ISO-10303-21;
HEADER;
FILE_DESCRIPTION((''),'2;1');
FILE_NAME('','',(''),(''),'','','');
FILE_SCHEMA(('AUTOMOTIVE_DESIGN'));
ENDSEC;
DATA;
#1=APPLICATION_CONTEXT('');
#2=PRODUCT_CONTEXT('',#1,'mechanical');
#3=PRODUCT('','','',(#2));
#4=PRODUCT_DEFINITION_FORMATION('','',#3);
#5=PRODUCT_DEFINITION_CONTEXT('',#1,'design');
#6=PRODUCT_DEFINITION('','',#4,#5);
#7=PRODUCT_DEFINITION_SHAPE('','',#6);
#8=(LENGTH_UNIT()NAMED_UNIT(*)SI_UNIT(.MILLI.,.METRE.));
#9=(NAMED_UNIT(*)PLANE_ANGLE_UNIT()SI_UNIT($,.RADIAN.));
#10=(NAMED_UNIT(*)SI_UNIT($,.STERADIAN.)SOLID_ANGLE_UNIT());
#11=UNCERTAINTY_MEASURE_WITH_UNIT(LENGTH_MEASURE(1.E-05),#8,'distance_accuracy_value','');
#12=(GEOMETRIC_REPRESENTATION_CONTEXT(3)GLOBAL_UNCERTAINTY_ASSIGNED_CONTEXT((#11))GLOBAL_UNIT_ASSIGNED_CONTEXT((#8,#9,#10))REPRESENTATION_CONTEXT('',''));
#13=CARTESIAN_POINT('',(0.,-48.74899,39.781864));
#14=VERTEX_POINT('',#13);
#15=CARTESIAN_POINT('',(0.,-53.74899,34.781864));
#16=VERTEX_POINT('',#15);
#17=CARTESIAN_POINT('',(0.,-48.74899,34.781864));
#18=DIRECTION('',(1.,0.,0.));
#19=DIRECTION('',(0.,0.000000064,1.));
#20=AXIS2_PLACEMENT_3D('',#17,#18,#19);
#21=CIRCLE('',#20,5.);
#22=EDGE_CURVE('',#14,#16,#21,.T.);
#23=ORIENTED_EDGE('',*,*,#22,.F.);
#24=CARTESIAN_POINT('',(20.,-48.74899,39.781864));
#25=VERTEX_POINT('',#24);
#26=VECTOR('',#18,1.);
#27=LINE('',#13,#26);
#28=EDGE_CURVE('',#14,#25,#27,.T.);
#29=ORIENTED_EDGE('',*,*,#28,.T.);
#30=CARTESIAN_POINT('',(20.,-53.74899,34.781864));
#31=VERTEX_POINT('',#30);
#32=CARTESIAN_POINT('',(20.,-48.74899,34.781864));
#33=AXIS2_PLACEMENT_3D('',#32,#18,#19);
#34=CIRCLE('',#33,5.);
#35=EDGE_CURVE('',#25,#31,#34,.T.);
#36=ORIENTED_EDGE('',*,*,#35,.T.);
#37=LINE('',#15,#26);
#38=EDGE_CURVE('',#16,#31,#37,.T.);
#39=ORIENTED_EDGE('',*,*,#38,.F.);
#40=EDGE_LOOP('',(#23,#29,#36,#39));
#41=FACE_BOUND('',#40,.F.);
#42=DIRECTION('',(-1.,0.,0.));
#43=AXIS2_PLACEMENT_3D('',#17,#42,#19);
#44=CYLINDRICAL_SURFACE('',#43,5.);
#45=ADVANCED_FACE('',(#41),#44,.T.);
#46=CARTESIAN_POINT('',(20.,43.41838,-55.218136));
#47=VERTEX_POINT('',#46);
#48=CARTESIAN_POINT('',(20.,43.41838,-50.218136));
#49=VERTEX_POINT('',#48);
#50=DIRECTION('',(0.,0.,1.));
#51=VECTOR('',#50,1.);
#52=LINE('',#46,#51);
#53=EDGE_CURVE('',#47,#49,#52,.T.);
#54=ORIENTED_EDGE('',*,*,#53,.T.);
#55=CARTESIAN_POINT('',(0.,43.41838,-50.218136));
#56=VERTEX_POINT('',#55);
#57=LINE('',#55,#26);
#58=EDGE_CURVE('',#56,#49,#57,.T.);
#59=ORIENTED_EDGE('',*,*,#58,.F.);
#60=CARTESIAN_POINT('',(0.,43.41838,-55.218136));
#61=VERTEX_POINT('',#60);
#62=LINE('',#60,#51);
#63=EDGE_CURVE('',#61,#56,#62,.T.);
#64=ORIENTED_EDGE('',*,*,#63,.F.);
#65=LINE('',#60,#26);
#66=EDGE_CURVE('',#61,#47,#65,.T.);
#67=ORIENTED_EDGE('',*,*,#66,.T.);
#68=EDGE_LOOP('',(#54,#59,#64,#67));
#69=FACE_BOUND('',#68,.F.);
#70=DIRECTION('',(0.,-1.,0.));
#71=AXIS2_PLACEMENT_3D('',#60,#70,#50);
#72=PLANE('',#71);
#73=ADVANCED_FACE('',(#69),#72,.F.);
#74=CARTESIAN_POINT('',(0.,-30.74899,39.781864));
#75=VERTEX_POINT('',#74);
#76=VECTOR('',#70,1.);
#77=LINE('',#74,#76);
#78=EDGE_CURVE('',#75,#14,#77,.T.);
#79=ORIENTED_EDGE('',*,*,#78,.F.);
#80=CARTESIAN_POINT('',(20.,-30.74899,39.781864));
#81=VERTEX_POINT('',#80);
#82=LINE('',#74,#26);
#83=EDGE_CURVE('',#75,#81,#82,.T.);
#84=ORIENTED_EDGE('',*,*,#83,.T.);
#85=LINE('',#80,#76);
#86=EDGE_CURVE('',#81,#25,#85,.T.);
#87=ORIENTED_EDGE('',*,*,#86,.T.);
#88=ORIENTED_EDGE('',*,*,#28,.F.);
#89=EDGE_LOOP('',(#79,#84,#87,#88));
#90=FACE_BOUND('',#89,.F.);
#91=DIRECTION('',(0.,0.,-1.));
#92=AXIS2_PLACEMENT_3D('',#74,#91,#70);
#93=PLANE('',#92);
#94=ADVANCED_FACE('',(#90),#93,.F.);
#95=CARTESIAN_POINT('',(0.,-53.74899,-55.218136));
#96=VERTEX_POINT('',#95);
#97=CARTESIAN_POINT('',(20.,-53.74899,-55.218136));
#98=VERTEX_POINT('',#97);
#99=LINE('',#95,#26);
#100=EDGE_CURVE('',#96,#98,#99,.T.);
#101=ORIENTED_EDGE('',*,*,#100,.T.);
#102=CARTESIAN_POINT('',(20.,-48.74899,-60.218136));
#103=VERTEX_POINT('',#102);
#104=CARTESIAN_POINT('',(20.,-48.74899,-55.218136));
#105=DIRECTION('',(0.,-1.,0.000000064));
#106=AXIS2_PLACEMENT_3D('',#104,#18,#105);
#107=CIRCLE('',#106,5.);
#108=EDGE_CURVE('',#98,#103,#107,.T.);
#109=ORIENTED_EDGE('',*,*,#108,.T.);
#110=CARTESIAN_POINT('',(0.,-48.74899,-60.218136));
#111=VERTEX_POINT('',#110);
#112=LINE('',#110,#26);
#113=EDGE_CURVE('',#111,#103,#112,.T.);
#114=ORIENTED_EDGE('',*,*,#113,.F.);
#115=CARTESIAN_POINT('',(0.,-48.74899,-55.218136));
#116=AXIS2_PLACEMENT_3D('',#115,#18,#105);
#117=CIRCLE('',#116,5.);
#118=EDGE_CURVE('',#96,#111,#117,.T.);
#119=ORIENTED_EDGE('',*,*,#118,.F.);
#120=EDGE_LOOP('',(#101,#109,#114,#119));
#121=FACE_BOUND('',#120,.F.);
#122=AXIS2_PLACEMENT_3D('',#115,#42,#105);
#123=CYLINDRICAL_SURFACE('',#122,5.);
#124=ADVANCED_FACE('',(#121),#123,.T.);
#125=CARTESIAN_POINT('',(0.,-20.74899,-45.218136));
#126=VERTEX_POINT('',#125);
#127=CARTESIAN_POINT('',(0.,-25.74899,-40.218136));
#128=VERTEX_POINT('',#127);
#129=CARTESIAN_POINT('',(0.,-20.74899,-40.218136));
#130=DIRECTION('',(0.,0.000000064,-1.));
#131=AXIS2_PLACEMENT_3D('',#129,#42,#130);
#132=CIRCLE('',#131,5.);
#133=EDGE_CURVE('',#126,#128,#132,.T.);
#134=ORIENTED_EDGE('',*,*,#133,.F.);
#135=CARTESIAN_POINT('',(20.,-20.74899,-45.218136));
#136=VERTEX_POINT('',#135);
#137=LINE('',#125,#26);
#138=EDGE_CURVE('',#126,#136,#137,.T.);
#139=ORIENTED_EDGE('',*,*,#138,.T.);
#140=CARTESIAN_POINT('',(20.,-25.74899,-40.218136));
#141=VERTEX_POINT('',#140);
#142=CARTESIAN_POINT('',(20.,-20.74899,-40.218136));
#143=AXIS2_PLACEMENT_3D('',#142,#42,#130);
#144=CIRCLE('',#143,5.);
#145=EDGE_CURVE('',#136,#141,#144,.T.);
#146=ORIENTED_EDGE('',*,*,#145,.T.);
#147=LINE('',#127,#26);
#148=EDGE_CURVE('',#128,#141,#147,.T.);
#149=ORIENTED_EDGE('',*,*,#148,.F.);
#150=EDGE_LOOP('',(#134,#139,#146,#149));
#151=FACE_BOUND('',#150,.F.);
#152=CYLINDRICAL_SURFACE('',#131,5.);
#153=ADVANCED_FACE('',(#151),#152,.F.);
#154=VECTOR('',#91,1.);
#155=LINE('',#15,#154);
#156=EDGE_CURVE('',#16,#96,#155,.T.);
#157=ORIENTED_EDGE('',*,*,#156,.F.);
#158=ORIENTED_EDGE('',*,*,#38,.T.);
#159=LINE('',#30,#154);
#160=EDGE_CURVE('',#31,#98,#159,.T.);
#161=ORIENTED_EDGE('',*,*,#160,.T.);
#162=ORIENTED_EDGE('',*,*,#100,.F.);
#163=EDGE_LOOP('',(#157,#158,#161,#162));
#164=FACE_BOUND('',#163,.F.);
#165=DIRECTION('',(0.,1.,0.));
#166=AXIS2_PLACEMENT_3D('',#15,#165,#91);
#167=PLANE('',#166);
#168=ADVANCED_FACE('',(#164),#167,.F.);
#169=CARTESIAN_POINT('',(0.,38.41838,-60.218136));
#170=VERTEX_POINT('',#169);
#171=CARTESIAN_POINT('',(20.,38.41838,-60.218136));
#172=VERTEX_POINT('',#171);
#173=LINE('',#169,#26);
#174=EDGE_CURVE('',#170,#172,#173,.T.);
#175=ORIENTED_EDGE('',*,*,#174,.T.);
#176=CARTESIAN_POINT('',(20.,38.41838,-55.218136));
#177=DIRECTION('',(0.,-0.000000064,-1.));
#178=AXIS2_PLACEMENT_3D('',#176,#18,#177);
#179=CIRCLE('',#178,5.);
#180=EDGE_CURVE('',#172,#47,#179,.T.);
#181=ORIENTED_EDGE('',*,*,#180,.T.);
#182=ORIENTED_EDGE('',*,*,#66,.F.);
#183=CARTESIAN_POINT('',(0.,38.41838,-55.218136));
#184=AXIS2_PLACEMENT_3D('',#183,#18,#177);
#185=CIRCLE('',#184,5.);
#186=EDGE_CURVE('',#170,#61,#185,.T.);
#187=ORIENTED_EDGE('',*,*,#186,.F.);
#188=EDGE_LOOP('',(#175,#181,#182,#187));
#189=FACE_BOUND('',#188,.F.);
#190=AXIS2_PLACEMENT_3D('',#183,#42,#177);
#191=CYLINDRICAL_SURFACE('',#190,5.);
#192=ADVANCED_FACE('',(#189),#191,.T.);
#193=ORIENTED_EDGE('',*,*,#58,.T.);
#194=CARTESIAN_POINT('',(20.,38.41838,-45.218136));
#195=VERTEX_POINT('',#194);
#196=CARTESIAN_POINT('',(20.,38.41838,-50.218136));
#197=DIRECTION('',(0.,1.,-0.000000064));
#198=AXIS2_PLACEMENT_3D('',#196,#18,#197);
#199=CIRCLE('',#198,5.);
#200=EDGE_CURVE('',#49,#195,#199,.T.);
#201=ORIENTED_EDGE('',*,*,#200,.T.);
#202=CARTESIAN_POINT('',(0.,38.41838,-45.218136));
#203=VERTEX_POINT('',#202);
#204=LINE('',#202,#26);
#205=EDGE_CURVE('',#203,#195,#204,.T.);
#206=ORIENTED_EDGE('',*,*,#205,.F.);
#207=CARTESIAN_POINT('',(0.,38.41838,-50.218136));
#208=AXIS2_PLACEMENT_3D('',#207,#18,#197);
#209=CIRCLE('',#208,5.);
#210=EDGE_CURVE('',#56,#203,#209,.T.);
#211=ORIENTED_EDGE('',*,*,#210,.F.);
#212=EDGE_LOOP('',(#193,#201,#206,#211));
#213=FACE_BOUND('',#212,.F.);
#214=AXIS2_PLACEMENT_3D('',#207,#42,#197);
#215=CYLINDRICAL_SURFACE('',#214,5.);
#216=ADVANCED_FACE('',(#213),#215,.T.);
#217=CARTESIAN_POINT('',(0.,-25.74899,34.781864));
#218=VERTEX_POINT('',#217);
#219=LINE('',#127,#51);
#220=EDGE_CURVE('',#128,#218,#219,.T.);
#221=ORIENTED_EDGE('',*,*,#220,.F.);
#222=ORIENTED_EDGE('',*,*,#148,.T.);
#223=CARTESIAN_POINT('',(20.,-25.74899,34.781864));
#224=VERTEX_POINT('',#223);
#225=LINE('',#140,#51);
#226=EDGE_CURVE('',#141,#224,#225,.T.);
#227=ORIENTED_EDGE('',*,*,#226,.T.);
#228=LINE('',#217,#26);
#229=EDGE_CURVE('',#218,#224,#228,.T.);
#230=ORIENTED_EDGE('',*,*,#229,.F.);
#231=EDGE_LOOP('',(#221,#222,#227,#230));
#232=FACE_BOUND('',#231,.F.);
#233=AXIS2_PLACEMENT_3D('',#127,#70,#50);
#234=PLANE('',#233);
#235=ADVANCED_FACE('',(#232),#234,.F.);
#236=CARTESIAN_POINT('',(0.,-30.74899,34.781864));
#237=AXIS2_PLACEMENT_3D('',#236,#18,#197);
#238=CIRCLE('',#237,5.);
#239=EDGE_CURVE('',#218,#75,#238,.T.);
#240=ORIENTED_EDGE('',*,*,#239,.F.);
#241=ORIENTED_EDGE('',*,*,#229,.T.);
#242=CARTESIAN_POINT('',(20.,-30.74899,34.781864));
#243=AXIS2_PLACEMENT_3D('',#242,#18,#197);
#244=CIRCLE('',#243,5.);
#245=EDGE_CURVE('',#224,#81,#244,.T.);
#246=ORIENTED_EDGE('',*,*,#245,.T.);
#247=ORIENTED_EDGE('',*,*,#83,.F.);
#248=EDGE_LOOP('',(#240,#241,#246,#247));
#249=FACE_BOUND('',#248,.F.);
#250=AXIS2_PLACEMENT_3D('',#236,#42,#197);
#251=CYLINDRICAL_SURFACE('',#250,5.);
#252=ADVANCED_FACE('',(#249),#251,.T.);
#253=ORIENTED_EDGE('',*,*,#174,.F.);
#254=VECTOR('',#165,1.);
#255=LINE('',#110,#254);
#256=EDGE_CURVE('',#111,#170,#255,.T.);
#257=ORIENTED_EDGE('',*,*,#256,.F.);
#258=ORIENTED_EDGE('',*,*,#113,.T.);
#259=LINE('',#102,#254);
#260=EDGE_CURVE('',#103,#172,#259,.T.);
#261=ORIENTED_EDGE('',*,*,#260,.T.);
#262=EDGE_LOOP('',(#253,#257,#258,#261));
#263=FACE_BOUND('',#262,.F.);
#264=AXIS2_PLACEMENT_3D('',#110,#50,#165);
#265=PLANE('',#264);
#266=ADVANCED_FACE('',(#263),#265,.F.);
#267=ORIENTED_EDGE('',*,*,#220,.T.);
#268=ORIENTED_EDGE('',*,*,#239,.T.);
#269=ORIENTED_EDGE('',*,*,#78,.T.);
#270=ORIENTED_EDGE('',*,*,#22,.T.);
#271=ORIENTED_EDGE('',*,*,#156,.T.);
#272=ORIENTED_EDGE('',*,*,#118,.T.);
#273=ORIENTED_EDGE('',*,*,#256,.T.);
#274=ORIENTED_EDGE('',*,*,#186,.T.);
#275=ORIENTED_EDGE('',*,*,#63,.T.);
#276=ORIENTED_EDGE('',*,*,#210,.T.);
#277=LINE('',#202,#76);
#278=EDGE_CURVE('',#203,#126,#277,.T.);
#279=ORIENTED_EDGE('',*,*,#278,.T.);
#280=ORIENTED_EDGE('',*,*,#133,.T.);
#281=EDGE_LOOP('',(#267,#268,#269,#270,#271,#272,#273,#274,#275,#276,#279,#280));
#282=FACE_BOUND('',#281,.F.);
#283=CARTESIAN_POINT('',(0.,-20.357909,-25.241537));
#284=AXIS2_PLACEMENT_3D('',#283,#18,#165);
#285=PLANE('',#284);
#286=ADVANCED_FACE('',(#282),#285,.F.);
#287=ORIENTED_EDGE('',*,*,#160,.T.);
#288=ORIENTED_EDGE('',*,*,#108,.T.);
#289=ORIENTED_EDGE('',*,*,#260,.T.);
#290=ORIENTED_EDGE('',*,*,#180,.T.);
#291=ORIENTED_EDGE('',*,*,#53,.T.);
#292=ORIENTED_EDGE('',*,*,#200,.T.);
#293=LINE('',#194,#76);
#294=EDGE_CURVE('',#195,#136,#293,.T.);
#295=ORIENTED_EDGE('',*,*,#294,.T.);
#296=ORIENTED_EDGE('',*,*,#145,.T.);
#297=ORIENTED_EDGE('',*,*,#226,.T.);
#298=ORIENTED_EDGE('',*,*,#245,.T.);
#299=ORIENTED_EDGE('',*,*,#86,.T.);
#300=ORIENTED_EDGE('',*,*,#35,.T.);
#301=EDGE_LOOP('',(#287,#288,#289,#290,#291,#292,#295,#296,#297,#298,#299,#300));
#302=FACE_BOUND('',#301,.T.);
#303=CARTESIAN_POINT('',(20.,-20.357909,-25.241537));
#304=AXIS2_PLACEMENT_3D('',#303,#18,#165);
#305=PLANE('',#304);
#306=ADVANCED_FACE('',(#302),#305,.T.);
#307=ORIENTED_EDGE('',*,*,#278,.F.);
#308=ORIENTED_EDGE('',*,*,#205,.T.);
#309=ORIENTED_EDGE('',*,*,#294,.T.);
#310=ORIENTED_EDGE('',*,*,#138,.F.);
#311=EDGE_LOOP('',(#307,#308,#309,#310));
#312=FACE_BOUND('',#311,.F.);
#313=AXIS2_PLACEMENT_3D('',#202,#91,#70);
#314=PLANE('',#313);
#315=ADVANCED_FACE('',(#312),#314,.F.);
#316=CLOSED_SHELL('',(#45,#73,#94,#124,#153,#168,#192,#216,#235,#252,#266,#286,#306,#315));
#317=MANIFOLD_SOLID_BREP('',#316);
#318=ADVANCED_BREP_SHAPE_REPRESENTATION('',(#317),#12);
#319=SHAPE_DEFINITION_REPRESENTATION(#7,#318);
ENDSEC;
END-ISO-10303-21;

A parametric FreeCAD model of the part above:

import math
import FreeCAD as App
import Part
import Sketcher
from FreeCAD import Vector

doc = App.newDocument("Part")
body = doc.addObject("PartDesign::Body", "Body")

sketch1 = doc.addObject("Sketcher::SketchObject", "Sketch")
body.addObject(sketch1)
sketch1.AttachmentSupport = (doc.YZ_Plane, [""])
sketch1.MapMode = "FlatFace"
sketch1.addGeometry(Part.LineSegment(Vector(-30.74899, 39.781864, 0), Vector(-48.74899, 39.781864, 0)), False)
sketch1.addGeometry(Part.ArcOfCircle(Part.Circle(Vector(-48.74899, 34.781864, 0), Vector(0, 0, 1), 5), math.radians(89.999996), math.radians(180.000004)), False)
sketch1.addGeometry(Part.LineSegment(Vector(-53.74899, 34.781864, 0), Vector(-53.74899, -55.218136, 0)), False)
sketch1.addGeometry(Part.ArcOfCircle(Part.Circle(Vector(-48.74899, -55.218136, 0), Vector(0, 0, 1), 5), math.radians(179.999996), math.radians(270.000004)), False)
sketch1.addGeometry(Part.LineSegment(Vector(-48.74899, -60.218136, 0), Vector(38.41838, -60.218136, 0)), False)
sketch1.addGeometry(Part.ArcOfCircle(Part.Circle(Vector(38.41838, -55.218136, 0), Vector(0, 0, 1), 5), math.radians(-90.000004), math.radians(0.000004)), False)
sketch1.addGeometry(Part.LineSegment(Vector(43.41838, -55.218136, 0), Vector(43.41838, -50.218136, 0)), False)
sketch1.addGeometry(Part.ArcOfCircle(Part.Circle(Vector(38.41838, -50.218136, 0), Vector(0, 0, 1), 5), math.radians(-0.000004), math.radians(90.000004)), False)
sketch1.addGeometry(Part.LineSegment(Vector(38.41838, -45.218136, 0), Vector(-20.74899, -45.218136, 0)), False)
sketch1.addGeometry(Part.ArcOfCircle(Part.Circle(Vector(-20.74899, -40.218136, 0), Vector(0, 0, 1), 5), math.radians(179.999996), math.radians(270.000004)), False)
sketch1.addGeometry(Part.LineSegment(Vector(-25.74899, -40.218136, 0), Vector(-25.74899, 34.781864, 0)), False)
sketch1.addGeometry(Part.ArcOfCircle(Part.Circle(Vector(-30.74899, 34.781864, 0), Vector(0, 0, 1), 5), math.radians(-0.000004), math.radians(90.000004)), False)
sketch1.addConstraint(Sketcher.Constraint("Tangent", 0, 2, 1, 1))
sketch1.addConstraint(Sketcher.Constraint("Tangent", 1, 2, 2, 1))
sketch1.addConstraint(Sketcher.Constraint("Tangent", 2, 2, 3, 1))
sketch1.addConstraint(Sketcher.Constraint("Tangent", 3, 2, 4, 1))
sketch1.addConstraint(Sketcher.Constraint("Tangent", 4, 2, 5, 1))
sketch1.addConstraint(Sketcher.Constraint("Tangent", 5, 2, 6, 1))
sketch1.addConstraint(Sketcher.Constraint("Tangent", 6, 2, 7, 1))
sketch1.addConstraint(Sketcher.Constraint("Tangent", 7, 2, 8, 1))
sketch1.addConstraint(Sketcher.Constraint("Tangent", 8, 2, 9, 2))
sketch1.addConstraint(Sketcher.Constraint("Tangent", 9, 1, 10, 1))
sketch1.addConstraint(Sketcher.Constraint("Tangent", 10, 2, 11, 1))
sketch1.addConstraint(Sketcher.Constraint("Tangent", 11, 2, 0, 1))
sketch1.addConstraint(Sketcher.Constraint("Horizontal", 0))
sketch1.addConstraint(Sketcher.Constraint("Vertical", 2))
sketch1.addConstraint(Sketcher.Constraint("Horizontal", 4))
sketch1.addConstraint(Sketcher.Constraint("Vertical", 6))
sketch1.addConstraint(Sketcher.Constraint("Horizontal", 8))
sketch1.addConstraint(Sketcher.Constraint("Vertical", 10))
sketch1.addConstraint(Sketcher.Constraint("Equal", 1, 3))
sketch1.addConstraint(Sketcher.Constraint("Equal", 3, 5))
sketch1.addConstraint(Sketcher.Constraint("Equal", 5, 7))
sketch1.addConstraint(Sketcher.Constraint("Equal", 7, 9))
sketch1.addConstraint(Sketcher.Constraint("Equal", 9, 11))
sketch1.addConstraint(Sketcher.Constraint("Radius", 1, 5.0))
sketch1.addConstraint(Sketcher.Constraint("DistanceX", 0, 2, 0, 1, 18.0))
sketch1.addConstraint(Sketcher.Constraint("DistanceY", 2, 2, 2, 1, 90.0))
sketch1.addConstraint(Sketcher.Constraint("DistanceY", 6, 1, 6, 2, 5.0))
sketch1.addConstraint(Sketcher.Constraint("DistanceX", 4, 1, 4, 2, 87.16737))
sketch1.addConstraint(Sketcher.Constraint("DistanceX", 1, 3, -1, 1, 48.74899))
sketch1.addConstraint(Sketcher.Constraint("DistanceY", -1, 1, 1, 3, 34.781864))
pad1 = doc.addObject("PartDesign::Pad", "Pad")
body.addObject(pad1)
pad1.Profile = sketch1
pad1.Length = 20

doc.recompute()
